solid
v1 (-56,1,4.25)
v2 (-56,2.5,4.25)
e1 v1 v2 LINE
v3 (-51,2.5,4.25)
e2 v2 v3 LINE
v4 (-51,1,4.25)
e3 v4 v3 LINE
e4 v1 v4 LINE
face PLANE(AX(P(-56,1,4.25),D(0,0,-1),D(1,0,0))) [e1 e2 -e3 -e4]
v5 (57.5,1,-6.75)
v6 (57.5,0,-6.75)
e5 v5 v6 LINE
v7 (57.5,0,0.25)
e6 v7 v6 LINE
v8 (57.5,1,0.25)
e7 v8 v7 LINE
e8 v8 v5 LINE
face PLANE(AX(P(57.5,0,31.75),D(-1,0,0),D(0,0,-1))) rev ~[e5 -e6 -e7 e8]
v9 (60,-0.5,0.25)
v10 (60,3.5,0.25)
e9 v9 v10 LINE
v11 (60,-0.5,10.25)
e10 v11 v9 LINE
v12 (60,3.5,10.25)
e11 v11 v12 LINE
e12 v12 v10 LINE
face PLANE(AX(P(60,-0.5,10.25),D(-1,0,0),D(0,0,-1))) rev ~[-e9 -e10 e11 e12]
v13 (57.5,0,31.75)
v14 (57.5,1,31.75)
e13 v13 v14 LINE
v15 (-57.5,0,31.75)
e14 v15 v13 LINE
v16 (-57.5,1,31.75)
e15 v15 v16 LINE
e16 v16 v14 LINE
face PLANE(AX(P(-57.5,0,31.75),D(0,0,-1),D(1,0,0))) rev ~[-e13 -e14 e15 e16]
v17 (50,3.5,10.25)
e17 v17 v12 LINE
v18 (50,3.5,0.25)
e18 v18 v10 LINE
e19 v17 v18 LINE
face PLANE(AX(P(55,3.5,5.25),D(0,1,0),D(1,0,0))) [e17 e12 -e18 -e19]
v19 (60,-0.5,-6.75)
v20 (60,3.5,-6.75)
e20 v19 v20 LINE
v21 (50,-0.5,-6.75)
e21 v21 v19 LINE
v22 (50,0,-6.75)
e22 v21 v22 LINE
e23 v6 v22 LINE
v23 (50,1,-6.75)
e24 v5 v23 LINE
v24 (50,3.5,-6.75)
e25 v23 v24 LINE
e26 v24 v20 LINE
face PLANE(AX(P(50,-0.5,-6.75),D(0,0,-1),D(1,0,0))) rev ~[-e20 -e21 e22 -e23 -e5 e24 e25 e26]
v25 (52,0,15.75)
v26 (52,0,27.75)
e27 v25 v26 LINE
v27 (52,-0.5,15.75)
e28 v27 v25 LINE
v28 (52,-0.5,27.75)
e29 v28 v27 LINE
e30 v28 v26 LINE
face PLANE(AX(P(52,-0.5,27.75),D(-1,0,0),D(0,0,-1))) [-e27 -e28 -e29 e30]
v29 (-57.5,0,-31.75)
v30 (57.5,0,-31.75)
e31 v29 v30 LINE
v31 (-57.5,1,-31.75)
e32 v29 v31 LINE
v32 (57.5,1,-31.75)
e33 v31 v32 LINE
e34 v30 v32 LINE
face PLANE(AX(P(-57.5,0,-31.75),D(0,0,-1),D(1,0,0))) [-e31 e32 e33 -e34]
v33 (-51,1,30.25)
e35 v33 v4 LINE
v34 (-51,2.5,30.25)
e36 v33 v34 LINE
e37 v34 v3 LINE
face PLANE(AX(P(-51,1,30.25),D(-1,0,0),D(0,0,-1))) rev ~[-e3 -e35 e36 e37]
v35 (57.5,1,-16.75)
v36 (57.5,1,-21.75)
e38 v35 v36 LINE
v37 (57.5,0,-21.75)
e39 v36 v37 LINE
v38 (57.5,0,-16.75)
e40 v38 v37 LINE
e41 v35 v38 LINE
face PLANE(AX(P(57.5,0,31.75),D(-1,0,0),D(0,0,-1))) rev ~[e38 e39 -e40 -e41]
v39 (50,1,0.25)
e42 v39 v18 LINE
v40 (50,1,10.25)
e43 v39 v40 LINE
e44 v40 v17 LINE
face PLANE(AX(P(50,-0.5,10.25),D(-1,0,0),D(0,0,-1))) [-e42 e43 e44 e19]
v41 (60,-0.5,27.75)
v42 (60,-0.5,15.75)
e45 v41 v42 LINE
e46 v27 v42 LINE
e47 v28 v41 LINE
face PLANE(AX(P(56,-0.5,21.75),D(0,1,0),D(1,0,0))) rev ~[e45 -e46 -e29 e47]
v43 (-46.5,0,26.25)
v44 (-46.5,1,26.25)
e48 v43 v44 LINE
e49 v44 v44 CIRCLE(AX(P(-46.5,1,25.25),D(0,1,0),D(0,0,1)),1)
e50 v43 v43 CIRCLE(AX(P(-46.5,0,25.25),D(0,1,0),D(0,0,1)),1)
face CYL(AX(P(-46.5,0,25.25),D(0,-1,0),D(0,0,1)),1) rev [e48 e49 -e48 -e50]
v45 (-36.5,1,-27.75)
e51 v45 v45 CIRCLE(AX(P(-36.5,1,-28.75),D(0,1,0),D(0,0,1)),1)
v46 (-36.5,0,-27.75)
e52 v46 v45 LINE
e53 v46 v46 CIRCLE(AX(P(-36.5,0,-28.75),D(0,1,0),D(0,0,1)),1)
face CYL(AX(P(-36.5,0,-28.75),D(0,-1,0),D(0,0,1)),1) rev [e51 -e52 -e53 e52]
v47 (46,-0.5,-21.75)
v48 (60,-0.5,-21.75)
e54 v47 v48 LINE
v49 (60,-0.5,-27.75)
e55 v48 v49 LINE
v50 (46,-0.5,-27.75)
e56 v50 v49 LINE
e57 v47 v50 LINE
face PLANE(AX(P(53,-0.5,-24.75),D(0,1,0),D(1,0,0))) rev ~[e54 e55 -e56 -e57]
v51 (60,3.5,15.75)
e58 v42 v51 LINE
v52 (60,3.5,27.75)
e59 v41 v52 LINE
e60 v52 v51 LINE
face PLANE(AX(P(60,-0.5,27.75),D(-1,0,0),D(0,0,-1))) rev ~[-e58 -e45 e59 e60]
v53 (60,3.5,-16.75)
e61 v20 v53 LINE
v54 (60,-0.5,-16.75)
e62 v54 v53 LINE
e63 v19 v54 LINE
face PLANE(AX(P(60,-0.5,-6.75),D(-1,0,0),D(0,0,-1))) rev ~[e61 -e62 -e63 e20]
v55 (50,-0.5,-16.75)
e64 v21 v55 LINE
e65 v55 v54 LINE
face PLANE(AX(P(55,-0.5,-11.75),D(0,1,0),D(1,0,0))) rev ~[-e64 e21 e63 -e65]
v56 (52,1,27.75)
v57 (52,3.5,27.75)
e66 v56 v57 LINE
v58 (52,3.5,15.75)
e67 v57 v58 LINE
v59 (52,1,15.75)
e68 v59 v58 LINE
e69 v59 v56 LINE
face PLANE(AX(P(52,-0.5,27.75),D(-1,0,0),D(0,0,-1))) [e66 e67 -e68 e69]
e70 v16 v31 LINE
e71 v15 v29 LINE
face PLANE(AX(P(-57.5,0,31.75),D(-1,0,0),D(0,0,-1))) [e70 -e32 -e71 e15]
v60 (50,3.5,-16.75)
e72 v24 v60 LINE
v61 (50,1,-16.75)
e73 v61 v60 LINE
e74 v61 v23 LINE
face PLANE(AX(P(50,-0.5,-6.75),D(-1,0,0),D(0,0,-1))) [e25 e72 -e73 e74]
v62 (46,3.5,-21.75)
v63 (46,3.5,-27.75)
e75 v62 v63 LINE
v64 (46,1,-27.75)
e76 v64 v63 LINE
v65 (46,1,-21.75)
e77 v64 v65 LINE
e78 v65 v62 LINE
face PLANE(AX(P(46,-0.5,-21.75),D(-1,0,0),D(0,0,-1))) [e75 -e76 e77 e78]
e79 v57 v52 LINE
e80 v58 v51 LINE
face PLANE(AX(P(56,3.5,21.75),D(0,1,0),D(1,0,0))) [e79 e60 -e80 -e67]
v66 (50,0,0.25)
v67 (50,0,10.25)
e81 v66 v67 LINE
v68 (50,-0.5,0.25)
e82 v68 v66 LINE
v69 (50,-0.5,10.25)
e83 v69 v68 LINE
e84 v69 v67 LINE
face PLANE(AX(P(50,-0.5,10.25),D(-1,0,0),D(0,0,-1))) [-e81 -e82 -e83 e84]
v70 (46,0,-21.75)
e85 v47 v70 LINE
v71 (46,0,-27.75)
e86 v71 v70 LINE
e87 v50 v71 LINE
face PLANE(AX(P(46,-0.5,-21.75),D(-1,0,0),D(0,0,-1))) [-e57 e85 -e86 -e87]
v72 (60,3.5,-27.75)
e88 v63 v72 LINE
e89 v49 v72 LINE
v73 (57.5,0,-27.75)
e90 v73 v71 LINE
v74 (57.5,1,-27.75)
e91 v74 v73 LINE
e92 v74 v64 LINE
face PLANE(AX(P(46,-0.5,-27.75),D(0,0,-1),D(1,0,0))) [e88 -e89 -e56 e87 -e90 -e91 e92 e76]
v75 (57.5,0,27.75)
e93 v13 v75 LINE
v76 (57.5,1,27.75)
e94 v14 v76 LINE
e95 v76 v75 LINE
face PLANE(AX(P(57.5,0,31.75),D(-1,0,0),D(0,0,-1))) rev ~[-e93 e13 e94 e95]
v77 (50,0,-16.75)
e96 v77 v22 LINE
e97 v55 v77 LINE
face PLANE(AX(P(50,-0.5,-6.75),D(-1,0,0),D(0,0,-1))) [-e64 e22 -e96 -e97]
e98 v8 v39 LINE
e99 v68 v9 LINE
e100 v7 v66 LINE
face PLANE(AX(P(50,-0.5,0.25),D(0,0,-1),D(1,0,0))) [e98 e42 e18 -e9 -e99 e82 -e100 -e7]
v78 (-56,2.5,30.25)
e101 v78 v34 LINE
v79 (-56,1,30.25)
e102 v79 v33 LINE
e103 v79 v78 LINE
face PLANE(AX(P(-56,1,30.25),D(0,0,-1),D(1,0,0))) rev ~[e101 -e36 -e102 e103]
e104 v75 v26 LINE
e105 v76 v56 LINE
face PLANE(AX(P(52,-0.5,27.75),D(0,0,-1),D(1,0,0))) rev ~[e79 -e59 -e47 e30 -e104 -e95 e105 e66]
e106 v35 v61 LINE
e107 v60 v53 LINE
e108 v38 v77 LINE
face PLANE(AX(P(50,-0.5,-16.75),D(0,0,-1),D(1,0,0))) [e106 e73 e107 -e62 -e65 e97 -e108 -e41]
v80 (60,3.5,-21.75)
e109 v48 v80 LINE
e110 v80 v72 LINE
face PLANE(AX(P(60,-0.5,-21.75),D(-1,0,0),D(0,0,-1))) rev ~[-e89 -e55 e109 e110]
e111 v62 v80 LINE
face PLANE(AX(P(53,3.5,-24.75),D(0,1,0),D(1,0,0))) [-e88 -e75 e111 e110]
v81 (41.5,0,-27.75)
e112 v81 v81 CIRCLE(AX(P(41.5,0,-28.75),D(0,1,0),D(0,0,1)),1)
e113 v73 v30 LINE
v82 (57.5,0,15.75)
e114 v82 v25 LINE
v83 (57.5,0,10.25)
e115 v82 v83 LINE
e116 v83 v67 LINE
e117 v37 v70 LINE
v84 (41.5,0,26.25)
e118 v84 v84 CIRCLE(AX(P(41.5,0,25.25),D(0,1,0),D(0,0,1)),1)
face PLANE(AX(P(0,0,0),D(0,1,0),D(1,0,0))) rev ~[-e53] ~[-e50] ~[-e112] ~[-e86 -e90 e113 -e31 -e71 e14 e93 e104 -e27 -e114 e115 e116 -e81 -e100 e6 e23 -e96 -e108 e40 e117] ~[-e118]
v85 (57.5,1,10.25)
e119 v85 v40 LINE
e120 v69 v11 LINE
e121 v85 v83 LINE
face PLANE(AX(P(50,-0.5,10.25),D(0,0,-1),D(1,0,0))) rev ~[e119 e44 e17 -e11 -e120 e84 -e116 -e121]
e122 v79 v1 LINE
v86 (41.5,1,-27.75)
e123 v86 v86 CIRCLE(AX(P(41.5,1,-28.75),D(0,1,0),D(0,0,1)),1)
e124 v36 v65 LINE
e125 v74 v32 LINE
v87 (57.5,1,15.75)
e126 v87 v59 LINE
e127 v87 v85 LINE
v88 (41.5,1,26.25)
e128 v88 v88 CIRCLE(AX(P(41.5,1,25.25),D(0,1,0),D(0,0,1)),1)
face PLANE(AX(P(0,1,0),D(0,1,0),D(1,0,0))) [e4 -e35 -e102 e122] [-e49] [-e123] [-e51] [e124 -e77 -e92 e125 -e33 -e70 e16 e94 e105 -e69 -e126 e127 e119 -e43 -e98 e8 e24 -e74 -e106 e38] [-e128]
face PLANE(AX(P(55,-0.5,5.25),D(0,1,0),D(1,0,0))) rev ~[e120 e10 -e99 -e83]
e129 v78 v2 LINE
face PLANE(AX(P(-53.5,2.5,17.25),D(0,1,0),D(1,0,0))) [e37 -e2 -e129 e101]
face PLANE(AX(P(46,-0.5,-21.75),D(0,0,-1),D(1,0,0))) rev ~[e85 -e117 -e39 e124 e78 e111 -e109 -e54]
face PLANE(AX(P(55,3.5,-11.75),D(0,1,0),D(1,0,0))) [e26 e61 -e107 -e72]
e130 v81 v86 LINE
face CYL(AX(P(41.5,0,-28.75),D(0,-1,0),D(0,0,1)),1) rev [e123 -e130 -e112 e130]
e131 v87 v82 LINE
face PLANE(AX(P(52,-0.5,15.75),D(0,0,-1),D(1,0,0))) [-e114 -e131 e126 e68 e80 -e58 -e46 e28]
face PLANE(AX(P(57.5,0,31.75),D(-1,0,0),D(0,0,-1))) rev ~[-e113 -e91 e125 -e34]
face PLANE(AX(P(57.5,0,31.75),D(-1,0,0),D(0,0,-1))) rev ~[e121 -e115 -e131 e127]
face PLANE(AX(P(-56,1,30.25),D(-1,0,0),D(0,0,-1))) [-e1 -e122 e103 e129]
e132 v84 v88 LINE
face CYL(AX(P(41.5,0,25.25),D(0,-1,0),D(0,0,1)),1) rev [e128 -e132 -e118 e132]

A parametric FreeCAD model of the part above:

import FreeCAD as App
import Part
import Sketcher
from FreeCAD import Vector


def add_polygon(sketch, points):
    """Adds a closed chain of lines whose ends are joined by coincident constraints."""
    first, n = sketch.GeometryCount, len(points)
    for a, b in zip(points, points[1:] + points[:1]):
        sketch.addGeometry(Part.LineSegment(App.Vector(*a, 0), App.Vector(*b, 0)), False)
    for i in range(n):
        sketch.addConstraint(Sketcher.Constraint("Coincident", first + i, 2, first + (i + 1) % n, 1))

doc = App.newDocument("Part")
body = doc.addObject("PartDesign::Body", "Body")

sketch1 = doc.addObject("Sketcher::SketchObject", "Sketch")
body.addObject(sketch1)
sketch1.AttachmentSupport = (doc.XZ_Plane, [""])
sketch1.MapMode = "FlatFace"
add_polygon(sketch1, [(-57.5, -31.75), (-57.5, 31.75), (57.5, 31.75), (57.5, -31.75)])
sketch1.addGeometry(Part.Circle(Vector(-46.5, 25.25, 0), Vector(0, 0, 1), 1), False)
sketch1.addGeometry(Part.Circle(Vector(41.5, 25.25, 0), Vector(0, 0, 1), 1), False)
sketch1.addGeometry(Part.Circle(Vector(-36.5, -28.75, 0), Vector(0, 0, 1), 1), False)
sketch1.addGeometry(Part.Circle(Vector(41.5, -28.75, 0), Vector(0, 0, 1), 1), False)
sketch1.addConstraint([
    Sketcher.Constraint("Vertical", 0),
    Sketcher.Constraint("Horizontal", 1),
    Sketcher.Constraint("Vertical", 2),
    Sketcher.Constraint("Horizontal", 3),
    Sketcher.Constraint("Equal", 4, 5),
    Sketcher.Constraint("Equal", 5, 6),
    Sketcher.Constraint("Equal", 6, 7),
    Sketcher.Constraint("Symmetric", 0, 2, 2, 2, -1, 1),
    Sketcher.Constraint("Horizontal", 4, 3, 5, 3),
    Sketcher.Constraint("Horizontal", 6, 3, 7, 3),
    Sketcher.Constraint("Vertical", 5, 3, 7, 3),
    Sketcher.Constraint("Diameter", 4, 2.0),
    Sketcher.Constraint("DistanceX", 1, 1, 1, 2, 115.0),
    Sketcher.Constraint("DistanceY", 0, 1, 0, 2, 63.5),
    Sketcher.Constraint("DistanceX", 4, 3, 5, 3, 88.0),
    Sketcher.Constraint("DistanceX", 4, 3, 6, 3, 10.0),
    Sketcher.Constraint("DistanceY", 6, 3, 4, 3, 54.0),
    Sketcher.Constraint("DistanceX", 0, 2, 4, 3, 11.0),
    Sketcher.Constraint("DistanceY", 2, 2, 7, 3, 3.0),
])
pad1 = doc.addObject("PartDesign::Pad", "Pad")
body.addObject(pad1)
pad1.Profile = sketch1
pad1.Length = 1
pad1.Reversed = True

sketch2 = doc.addObject("Sketcher::SketchObject", "Sketch001")
body.addObject(sketch2)
sketch2.AttachmentSupport = (doc.XZ_Plane, [""])
sketch2.MapMode = "FlatFace"
add_polygon(sketch2, [(52, 15.75), (52, 27.75), (60, 27.75), (60, 15.75)])
add_polygon(sketch2, [(50, 0.25), (50, 10.25), (60, 10.25), (60, 0.25)])
add_polygon(sketch2, [(50, -16.75), (50, -6.75), (60, -6.75), (60, -16.75)])
add_polygon(sketch2, [(46, -27.75), (46, -21.75), (60, -21.75), (60, -27.75)])
sketch2.addConstraint([
    Sketcher.Constraint("Vertical", 0),
    Sketcher.Constraint("Horizontal", 1),
    Sketcher.Constraint("Vertical", 2),
    Sketcher.Constraint("Horizontal", 3),
    Sketcher.Constraint("Vertical", 4),
    Sketcher.Constraint("Horizontal", 5),
    Sketcher.Constraint("Vertical", 6),
    Sketcher.Constraint("Horizontal", 7),
    Sketcher.Constraint("Vertical", 8),
    Sketcher.Constraint("Horizontal", 9),
    Sketcher.Constraint("Vertical", 10),
    Sketcher.Constraint("Horizontal", 11),
    Sketcher.Constraint("Vertical", 12),
    Sketcher.Constraint("Horizontal", 13),
    Sketcher.Constraint("Vertical", 14),
    Sketcher.Constraint("Horizontal", 15),
    Sketcher.Constraint("Symmetric", 1, 2, 14, 2, -1),
    Sketcher.Constraint("Vertical", 2, 2, 5, 2),
    Sketcher.Constraint("Vertical", 7, 2, 8, 2),
    Sketcher.Constraint("Vertical", 6, 2, 9, 2),
    Sketcher.Constraint("Equal", 11, 4),
    Sketcher.Constraint("Equal", 6, 8),
    Sketcher.Constraint("DistanceX", 1, 1, 1, 2, 8.0),
    Sketcher.Constraint("DistanceX", 5, 1, 5, 2, 10.0),
    Sketcher.Constraint("DistanceX", 13, 1, 13, 2, 14.0),
    Sketcher.Constraint("DistanceY", 0, 1, 0, 2, 12.0),
    Sketcher.Constraint("DistanceY", 12, 1, 12, 2, 6.0),
    Sketcher.Constraint("DistanceX", -1, 1, 0, 2, 52.0),
    Sketcher.Constraint("DistanceY", 8, 2, 7, 2, 7.0),
    Sketcher.Constraint("DistanceY", 12, 2, 11, 2, 5.0),
    Sketcher.Constraint("DistanceY", 4, 2, 3, 2, 5.5),
])
pad2 = doc.addObject("PartDesign::Pad", "Pad001")
body.addObject(pad2)
pad2.Profile = sketch2
pad2.Type = "TwoLengths"
pad2.Length = 3.5
pad2.Length2 = 0.5
pad2.Reversed = True

sketch3 = doc.addObject("Sketcher::SketchObject", "Sketch002")
body.addObject(sketch3)
sketch3.AttachmentSupport = (doc.XZ_Plane, [""])
sketch3.MapMode = "FlatFace"
sketch3.AttachmentOffset = App.Placement(Vector(0, 0, -1), App.Rotation())
add_polygon(sketch3, [(-56, 4.25), (-56, 30.25), (-51, 30.25), (-51, 4.25)])
sketch3.addConstraint([
    Sketcher.Constraint("Vertical", 0),
    Sketcher.Constraint("Horizontal", 1),
    Sketcher.Constraint("Vertical", 2),
    Sketcher.Constraint("Horizontal", 3),
    Sketcher.Constraint("DistanceX", 1, 1, 1, 2, 5.0),
    Sketcher.Constraint("DistanceY", 0, 1, 0, 2, 26.0),
    Sketcher.Constraint("DistanceX", 0, 2, -1, 1, 56.0),
    Sketcher.Constraint("DistanceY", -1, 1, 0, 2, 30.25),
])
pad3 = doc.addObject("PartDesign::Pad", "Pad002")
body.addObject(pad3)
pad3.Profile = sketch3
pad3.Length = 1.5
pad3.Reversed = True

doc.recompute()
